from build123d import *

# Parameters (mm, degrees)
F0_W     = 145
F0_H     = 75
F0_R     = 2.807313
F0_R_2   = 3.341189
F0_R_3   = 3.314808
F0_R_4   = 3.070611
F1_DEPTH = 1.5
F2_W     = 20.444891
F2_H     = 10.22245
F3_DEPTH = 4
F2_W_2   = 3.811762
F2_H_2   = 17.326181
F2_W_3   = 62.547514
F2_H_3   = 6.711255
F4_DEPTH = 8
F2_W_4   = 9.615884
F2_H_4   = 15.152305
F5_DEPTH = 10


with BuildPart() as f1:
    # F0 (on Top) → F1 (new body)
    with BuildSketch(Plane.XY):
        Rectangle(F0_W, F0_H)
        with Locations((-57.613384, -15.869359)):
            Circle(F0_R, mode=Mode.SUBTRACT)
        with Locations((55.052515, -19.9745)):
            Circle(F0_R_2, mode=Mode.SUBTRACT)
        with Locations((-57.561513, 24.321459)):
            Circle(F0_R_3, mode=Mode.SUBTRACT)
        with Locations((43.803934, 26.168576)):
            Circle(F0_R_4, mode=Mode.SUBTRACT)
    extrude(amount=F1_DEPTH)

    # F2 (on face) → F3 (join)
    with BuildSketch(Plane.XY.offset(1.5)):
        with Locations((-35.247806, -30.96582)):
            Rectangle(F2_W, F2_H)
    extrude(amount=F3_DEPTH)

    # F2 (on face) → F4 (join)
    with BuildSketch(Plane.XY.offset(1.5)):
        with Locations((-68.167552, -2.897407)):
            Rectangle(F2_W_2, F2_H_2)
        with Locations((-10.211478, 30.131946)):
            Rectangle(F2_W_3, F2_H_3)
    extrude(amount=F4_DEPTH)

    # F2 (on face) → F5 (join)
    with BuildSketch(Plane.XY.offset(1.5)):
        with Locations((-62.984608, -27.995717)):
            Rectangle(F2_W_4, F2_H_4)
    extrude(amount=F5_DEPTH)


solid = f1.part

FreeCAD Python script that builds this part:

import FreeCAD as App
import Part
import Sketcher

doc = App.newDocument("Part")
body = doc.addObject("PartDesign::Body", "Body")

# Sketch on XY plane
sketch1 = doc.addObject("Sketcher::SketchObject", "Sketch")
body.addObject(sketch1)
sketch1.AttachmentSupport = (doc.XY_Plane, [""])
sketch1.MapMode = "FlatFace"
sketch1.addGeometry([
    Part.LineSegment(App.Vector(-72.5, 37.5, 0), App.Vector(-72.5, -37.5, 0)),  # 0
    Part.LineSegment(App.Vector(-72.5, -37.5, 0), App.Vector(72.5, -37.5, 0)),  # 1
    Part.LineSegment(App.Vector(72.5, -37.5, 0), App.Vector(72.5, 37.5, 0)),  # 2
    Part.LineSegment(App.Vector(72.5, 37.5, 0), App.Vector(-72.5, 37.5, 0)),  # 3
    Part.Circle(App.Vector(-57.6, -15.9, 0), App.Vector(0, 0, 1), 2.8),  # 4
    Part.Circle(App.Vector(55.1, -20, 0), App.Vector(0, 0, 1), 3.3),  # 5
    Part.Circle(App.Vector(-57.6, 24.3, 0), App.Vector(0, 0, 1), 3.3),  # 6
    Part.Circle(App.Vector(43.8, 26.2, 0), App.Vector(0, 0, 1), 3.1),  # 7
], False)
sketch1.addConstraint([
    Sketcher.Constraint("Coincident", 0, 2, 1, 1),
    Sketcher.Constraint("Coincident", 1, 2, 2, 1),
    Sketcher.Constraint("Coincident", 2, 2, 3, 1),
    Sketcher.Constraint("Coincident", 3, 2, 0, 1),
    Sketcher.Constraint("Vertical", 0),
    Sketcher.Constraint("Horizontal", 1),
    Sketcher.Constraint("Vertical", 2),
    Sketcher.Constraint("Horizontal", 3),
    Sketcher.Constraint("Symmetric", 0, 2, 2, 2, -1, 1),
    Sketcher.Constraint("DistanceX", 1, 1, 1, 2, 145.0),
    Sketcher.Constraint("DistanceY", 0, 2, 0, 1, 75.0),
    Sketcher.Constraint("Diameter", 4, 5.614626),
    Sketcher.Constraint("Diameter", 5, 6.682378),
    Sketcher.Constraint("Diameter", 6, 6.629616),
    Sketcher.Constraint("Diameter", 7, 6.141222),
    Sketcher.Constraint("DistanceY", 5, 3, -1, 1, 19.9745),
    Sketcher.Constraint("DistanceX", 4, 3, 5, 3, 112.665899),
    Sketcher.Constraint("DistanceY", 4, 3, -1, 1, 15.869359),
    Sketcher.Constraint("DistanceY", -1, 1, 6, 3, 24.321459),
    Sketcher.Constraint("DistanceX", 4, 3, 6, 3, 0.051871),
    Sketcher.Constraint("DistanceX", 7, 3, 5, 3, 11.248581),
    Sketcher.Constraint("DistanceX", 4, 3, -1, 1, 57.613384),
    Sketcher.Constraint("DistanceY", -1, 1, 7, 3, 26.168576),
])
pad1 = doc.addObject("PartDesign::Pad", "Pad")
body.addObject(pad1)
pad1.Profile = sketch1
pad1.Length = 1.5

# Sketch on XY plane
sketch2 = doc.addObject("Sketcher::SketchObject", "Sketch001")
body.addObject(sketch2)
sketch2.AttachmentSupport = (doc.XY_Plane, [""])
sketch2.MapMode = "FlatFace"
sketch2.AttachmentOffset = App.Placement(App.Vector(0, 0, 1.5), App.Rotation())
sketch2.addGeometry([
    Part.LineSegment(App.Vector(-45, -26, 0), App.Vector(-45, -36, 0)),
    Part.LineSegment(App.Vector(-45, -36, 0), App.Vector(-25, -36, 0)),
    Part.LineSegment(App.Vector(-25, -36, 0), App.Vector(-25, -26, 0)),
    Part.LineSegment(App.Vector(-25, -26, 0), App.Vector(-45, -26, 0)),
], False)
sketch2.addConstraint([
    Sketcher.Constraint("Coincident", 0, 2, 1, 1),
    Sketcher.Constraint("Coincident", 1, 2, 2, 1),
    Sketcher.Constraint("Coincident", 2, 2, 3, 1),
    Sketcher.Constraint("Coincident", 3, 2, 0, 1),
    Sketcher.Constraint("Vertical", 0),
    Sketcher.Constraint("Horizontal", 1),
    Sketcher.Constraint("Vertical", 2),
    Sketcher.Constraint("Horizontal", 3),
    Sketcher.Constraint("DistanceX", 1, 1, 1, 2, 20.444891),
    Sketcher.Constraint("DistanceY", 0, 2, 0, 1, 10.22245),
    Sketcher.Constraint("DistanceX", 0, 2, -1, 1, 45.470252),
    Sketcher.Constraint("DistanceY", 0, 2, -1, 1, 36.077045),
])
pad2 = doc.addObject("PartDesign::Pad", "Pad001")
body.addObject(pad2)
pad2.Profile = sketch2
pad2.Length = 4

# Sketch on XY plane
sketch3 = doc.addObject("Sketcher::SketchObject", "Sketch002")
body.addObject(sketch3)
sketch3.AttachmentSupport = (doc.XY_Plane, [""])
sketch3.MapMode = "FlatFace"
sketch3.AttachmentOffset = App.Placement(App.Vector(0, 0, 1.5), App.Rotation())
sketch3.addGeometry([
    Part.LineSegment(App.Vector(-70.1, 5.8, 0), App.Vector(-70.1, -11.6, 0)),  # 0
    Part.LineSegment(App.Vector(-70.1, -11.6, 0), App.Vector(-66.3, -11.6, 0)),  # 1
    Part.LineSegment(App.Vector(-66.3, -11.6, 0), App.Vector(-66.3, 5.8, 0)),  # 2
    Part.LineSegment(App.Vector(-66.3, 5.8, 0), App.Vector(-70.1, 5.8, 0)),  # 3
    Part.LineSegment(App.Vector(-41.5, 33.5, 0), App.Vector(-41.5, 26.8, 0)),  # 4
    Part.LineSegment(App.Vector(-41.5, 26.8, 0), App.Vector(21.1, 26.8, 0)),  # 5
    Part.LineSegment(App.Vector(21.1, 26.8, 0), App.Vector(21.1, 33.5, 0)),  # 6
    Part.LineSegment(App.Vector(21.1, 33.5, 0), App.Vector(-41.5, 33.5, 0)),  # 7
], False)
sketch3.addConstraint([
    Sketcher.Constraint("Coincident", 0, 2, 1, 1),
    Sketcher.Constraint("Coincident", 1, 2, 2, 1),
    Sketcher.Constraint("Coincident", 2, 2, 3, 1),
    Sketcher.Constraint("Coincident", 3, 2, 0, 1),
    Sketcher.Constraint("Coincident", 4, 2, 5, 1),
    Sketcher.Constraint("Coincident", 5, 2, 6, 1),
    Sketcher.Constraint("Coincident", 6, 2, 7, 1),
    Sketcher.Constraint("Coincident", 7, 2, 4, 1),
    Sketcher.Constraint("Vertical", 0),
    Sketcher.Constraint("Horizontal", 1),
    Sketcher.Constraint("Vertical", 2),
    Sketcher.Constraint("Horizontal", 3),
    Sketcher.Constraint("Vertical", 4),
    Sketcher.Constraint("Horizontal", 5),
    Sketcher.Constraint("Vertical", 6),
    Sketcher.Constraint("Horizontal", 7),
    Sketcher.Constraint("DistanceX", 1, 1, 1, 2, 3.811762),
    Sketcher.Constraint("DistanceY", 0, 2, 0, 1, 17.326181),
    Sketcher.Constraint("DistanceX", 5, 1, 5, 2, 62.547514),
    Sketcher.Constraint("DistanceY", 4, 2, 4, 1, 6.711255),
    Sketcher.Constraint("DistanceX", 1, 2, -1, 1, 66.261671),
    Sketcher.Constraint("DistanceY", -1, 1, 4, 2, 26.776318),
    Sketcher.Constraint("DistanceX", -1, 1, 5, 2, 21.062279),
    Sketcher.Constraint("DistanceY", 2, 2, 6, 2, 27.72189),
])
pad3 = doc.addObject("PartDesign::Pad", "Pad002")
body.addObject(pad3)
pad3.Profile = sketch3
pad3.Length = 8

# Sketch on XY plane
sketch4 = doc.addObject("Sketcher::SketchObject", "Sketch003")
body.addObject(sketch4)
sketch4.AttachmentSupport = (doc.XY_Plane, [""])
sketch4.MapMode = "FlatFace"
sketch4.AttachmentOffset = App.Placement(App.Vector(0, 0, 1.5), App.Rotation())
sketch4.addGeometry([
    Part.LineSegment(App.Vector(-68, -20, 0), App.Vector(-68, -36, 0)),
    Part.LineSegment(App.Vector(-68, -36, 0), App.Vector(-58, -36, 0)),
    Part.LineSegment(App.Vector(-58, -36, 0), App.Vector(-58, -20, 0)),
    Part.LineSegment(App.Vector(-58, -20, 0), App.Vector(-68, -20, 0)),
], False)
sketch4.addConstraint([
    Sketcher.Constraint("Coincident", 0, 2, 1, 1),
    Sketcher.Constraint("Coincident", 1, 2, 2, 1),
    Sketcher.Constraint("Coincident", 2, 2, 3, 1),
    Sketcher.Constraint("Coincident", 3, 2, 0, 1),
    Sketcher.Constraint("Vertical", 0),
    Sketcher.Constraint("Horizontal", 1),
    Sketcher.Constraint("Vertical", 2),
    Sketcher.Constraint("Horizontal", 3),
    Sketcher.Constraint("DistanceX", 1, 1, 1, 2, 9.615884),
    Sketcher.Constraint("DistanceY", 0, 2, 0, 1, 15.152305),
    Sketcher.Constraint("DistanceX", 0, 2, -1, 1, 67.79255),
    Sketcher.Constraint("DistanceY", 0, 2, -1, 1, 35.571869),
])
pad4 = doc.addObject("PartDesign::Pad", "Pad003")
body.addObject(pad4)
pad4.Profile = sketch4
pad4.Length = 10

doc.recompute()
